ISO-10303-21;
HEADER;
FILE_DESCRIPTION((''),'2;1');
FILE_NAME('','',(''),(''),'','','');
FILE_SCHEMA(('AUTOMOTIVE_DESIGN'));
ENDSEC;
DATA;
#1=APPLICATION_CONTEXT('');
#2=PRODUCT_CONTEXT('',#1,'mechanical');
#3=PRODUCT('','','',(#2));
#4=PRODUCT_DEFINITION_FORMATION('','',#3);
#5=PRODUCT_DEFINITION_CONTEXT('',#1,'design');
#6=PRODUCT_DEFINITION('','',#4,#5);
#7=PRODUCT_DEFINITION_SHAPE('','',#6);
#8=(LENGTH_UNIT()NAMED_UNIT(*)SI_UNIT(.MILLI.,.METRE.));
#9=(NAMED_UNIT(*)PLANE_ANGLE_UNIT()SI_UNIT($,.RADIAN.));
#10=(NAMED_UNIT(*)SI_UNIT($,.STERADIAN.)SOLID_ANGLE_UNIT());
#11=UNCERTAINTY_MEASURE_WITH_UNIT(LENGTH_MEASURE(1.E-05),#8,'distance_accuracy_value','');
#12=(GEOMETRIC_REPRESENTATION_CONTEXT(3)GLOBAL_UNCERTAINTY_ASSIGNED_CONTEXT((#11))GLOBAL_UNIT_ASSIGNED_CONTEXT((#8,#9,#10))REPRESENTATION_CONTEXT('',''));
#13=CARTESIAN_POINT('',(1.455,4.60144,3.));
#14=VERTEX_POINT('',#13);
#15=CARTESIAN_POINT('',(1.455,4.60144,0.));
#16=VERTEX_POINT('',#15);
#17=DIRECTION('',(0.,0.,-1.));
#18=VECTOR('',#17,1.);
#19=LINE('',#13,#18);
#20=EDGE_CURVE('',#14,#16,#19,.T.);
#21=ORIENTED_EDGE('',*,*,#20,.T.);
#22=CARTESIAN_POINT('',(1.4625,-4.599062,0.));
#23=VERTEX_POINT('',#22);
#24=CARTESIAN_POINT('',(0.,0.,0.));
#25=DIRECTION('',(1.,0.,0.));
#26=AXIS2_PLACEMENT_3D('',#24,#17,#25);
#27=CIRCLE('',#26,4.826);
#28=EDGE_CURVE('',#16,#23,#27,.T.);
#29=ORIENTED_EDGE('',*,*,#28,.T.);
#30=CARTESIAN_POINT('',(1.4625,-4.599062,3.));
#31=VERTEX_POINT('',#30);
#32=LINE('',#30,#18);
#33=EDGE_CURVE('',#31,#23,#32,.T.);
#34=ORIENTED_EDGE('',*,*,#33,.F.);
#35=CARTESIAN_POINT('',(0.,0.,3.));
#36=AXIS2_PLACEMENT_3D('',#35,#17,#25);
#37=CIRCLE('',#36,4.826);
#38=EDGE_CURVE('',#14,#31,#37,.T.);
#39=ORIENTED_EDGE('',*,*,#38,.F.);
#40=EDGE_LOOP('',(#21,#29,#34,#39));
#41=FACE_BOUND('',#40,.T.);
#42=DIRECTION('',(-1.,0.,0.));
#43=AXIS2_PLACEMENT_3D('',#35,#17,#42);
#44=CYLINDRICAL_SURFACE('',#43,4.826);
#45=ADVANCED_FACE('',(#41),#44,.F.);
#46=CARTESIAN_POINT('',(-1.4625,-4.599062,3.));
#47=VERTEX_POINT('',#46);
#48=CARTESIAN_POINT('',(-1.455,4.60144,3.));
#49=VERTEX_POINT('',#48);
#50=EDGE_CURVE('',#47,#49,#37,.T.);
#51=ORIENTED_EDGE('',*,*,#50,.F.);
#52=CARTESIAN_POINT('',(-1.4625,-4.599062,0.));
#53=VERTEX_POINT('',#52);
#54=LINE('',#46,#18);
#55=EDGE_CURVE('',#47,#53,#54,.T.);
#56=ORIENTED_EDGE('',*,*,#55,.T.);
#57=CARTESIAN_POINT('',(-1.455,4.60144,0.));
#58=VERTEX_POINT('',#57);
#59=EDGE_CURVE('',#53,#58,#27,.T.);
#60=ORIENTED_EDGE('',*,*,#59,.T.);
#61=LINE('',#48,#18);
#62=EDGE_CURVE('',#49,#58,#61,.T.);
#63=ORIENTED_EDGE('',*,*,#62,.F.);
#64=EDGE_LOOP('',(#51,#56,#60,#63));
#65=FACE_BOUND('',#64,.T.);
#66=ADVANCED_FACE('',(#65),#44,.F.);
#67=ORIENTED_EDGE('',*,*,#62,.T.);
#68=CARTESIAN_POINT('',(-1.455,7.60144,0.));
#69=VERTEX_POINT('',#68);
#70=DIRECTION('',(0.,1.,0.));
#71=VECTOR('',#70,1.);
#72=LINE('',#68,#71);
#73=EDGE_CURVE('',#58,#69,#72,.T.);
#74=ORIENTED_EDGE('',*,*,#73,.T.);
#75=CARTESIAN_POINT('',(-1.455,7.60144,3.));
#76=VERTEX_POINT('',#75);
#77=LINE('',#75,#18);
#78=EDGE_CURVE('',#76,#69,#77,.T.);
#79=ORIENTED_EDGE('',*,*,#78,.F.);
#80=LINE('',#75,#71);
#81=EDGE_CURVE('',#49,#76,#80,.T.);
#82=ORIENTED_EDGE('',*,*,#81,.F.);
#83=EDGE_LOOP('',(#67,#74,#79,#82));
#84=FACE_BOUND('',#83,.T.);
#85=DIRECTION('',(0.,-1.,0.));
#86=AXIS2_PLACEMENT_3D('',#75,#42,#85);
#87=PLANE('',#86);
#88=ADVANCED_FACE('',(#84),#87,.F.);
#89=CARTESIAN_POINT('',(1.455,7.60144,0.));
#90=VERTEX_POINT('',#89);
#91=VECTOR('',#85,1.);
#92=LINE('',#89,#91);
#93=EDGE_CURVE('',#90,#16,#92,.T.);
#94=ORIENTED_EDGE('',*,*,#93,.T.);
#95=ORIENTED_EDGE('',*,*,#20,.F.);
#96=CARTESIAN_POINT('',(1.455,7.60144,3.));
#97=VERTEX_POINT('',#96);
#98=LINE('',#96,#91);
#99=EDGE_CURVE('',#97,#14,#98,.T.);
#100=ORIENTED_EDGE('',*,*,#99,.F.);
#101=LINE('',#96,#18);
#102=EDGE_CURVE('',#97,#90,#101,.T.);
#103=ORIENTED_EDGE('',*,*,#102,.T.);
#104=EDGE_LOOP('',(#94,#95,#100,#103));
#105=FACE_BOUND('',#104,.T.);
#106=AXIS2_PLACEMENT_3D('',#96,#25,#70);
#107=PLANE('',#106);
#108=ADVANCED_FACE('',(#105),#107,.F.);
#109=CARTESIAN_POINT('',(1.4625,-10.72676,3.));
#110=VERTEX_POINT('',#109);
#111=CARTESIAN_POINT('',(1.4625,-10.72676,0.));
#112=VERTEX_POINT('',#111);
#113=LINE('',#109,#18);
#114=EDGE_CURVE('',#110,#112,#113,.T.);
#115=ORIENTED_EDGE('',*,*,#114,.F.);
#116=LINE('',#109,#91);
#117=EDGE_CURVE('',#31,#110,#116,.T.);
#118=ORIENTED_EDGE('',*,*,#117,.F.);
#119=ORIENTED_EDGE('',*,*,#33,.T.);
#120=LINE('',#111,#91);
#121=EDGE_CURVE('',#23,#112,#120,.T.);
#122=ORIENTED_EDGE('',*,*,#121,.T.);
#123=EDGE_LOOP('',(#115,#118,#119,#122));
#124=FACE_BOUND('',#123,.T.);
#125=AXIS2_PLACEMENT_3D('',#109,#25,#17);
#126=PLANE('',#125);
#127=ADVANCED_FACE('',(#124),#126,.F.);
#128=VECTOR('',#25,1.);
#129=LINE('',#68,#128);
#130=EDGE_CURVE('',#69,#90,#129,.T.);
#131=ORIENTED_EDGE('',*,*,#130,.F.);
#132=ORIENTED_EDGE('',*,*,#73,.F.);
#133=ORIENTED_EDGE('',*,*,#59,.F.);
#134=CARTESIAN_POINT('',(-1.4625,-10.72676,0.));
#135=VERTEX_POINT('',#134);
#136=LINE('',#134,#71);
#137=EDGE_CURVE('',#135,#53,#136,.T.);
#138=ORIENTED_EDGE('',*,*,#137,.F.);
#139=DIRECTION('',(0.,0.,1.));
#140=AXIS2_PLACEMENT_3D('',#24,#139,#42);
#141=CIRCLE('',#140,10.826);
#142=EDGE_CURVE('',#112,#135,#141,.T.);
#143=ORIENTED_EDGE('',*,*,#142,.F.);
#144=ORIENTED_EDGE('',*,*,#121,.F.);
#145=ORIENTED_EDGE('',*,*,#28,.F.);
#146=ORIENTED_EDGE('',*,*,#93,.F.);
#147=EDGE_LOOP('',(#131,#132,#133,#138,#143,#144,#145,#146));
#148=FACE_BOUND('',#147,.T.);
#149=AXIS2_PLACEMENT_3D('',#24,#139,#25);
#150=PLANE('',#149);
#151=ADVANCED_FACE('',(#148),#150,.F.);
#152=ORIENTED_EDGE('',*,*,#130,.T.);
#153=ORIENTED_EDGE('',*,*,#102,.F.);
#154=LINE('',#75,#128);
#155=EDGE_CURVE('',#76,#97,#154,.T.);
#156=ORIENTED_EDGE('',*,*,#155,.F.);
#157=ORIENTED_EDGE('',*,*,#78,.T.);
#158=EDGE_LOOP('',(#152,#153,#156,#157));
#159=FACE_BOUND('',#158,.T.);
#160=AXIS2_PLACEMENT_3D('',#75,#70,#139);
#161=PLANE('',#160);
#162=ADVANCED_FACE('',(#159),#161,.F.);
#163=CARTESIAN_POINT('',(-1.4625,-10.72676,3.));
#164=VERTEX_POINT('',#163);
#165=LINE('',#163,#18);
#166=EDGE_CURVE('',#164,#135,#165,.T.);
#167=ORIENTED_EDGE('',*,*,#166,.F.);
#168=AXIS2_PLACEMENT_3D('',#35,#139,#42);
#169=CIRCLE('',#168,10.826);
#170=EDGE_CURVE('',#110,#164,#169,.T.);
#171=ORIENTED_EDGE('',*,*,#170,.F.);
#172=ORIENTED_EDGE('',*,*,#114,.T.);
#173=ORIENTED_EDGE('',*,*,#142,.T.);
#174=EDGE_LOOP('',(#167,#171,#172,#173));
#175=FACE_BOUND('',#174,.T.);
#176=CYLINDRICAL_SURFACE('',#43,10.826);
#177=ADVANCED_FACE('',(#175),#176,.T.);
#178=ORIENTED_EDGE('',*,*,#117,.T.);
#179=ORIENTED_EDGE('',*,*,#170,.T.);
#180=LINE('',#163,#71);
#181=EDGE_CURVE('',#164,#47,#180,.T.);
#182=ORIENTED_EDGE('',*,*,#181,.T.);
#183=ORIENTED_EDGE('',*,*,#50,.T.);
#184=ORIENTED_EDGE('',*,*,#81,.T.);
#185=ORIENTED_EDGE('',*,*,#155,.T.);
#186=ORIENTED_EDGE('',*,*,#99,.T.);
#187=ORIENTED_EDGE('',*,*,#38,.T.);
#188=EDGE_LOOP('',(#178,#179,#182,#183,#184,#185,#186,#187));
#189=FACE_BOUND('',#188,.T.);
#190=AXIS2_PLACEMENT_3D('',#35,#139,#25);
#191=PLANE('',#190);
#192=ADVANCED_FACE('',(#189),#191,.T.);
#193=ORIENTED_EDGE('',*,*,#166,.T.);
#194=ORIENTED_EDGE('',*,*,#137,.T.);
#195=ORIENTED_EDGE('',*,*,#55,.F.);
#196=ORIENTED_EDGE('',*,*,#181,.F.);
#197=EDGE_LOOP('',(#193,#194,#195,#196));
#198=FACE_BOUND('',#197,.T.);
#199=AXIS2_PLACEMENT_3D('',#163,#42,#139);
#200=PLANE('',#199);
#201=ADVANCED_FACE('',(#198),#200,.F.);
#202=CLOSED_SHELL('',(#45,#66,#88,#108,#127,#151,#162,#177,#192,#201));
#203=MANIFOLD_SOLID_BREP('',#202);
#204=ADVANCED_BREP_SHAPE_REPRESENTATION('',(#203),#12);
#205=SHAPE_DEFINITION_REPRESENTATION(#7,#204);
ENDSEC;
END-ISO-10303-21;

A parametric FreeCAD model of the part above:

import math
import FreeCAD as App
import Part
import Sketcher
from FreeCAD import Vector

doc = App.newDocument("Part")
body = doc.addObject("PartDesign::Body", "Body")

sketch1 = doc.addObject("Sketcher::SketchObject", "Sketch")
body.addObject(sketch1)
sketch1.AttachmentSupport = (doc.XY_Plane, [""])
sketch1.MapMode = "FlatFace"
sketch1.addGeometry([
    Part.LineSegment(Vector(-1.5, 7.6, 0), Vector(1.5, 7.6, 0)),
    Part.LineSegment(Vector(1.5, 7.6, 0), Vector(1.5, 4.6, 0)),
    Part.ArcOfCircle(Part.Circle(Vector(0, 0, 0), Vector(0, 0, 1), 4.8), math.radians(-72), math.radians(72)),
    Part.LineSegment(Vector(1.5, -4.6, 0), Vector(1.5, -10.7, 0)),
    Part.ArcOfCircle(Part.Circle(Vector(0, 0, 0), Vector(0, 0, 1), 10.8), math.radians(-82), math.radians(262)),
    Part.LineSegment(Vector(-1.5, -10.7, 0), Vector(-1.5, -4.6, 0)),
    Part.ArcOfCircle(Part.Circle(Vector(0, 0, 0), Vector(0, 0, 1), 4.8), math.radians(108), math.radians(252)),
    Part.LineSegment(Vector(-1.5, 4.6, 0), Vector(-1.5, 7.6, 0)),
], False)
sketch1.addConstraint([
    Sketcher.Constraint("Coincident", 0, 2, 1, 1),
    Sketcher.Constraint("Coincident", 1, 2, 2, 2),
    Sketcher.Constraint("Coincident", 2, 1, 3, 1),
    Sketcher.Constraint("Coincident", 3, 2, 4, 1),
    Sketcher.Constraint("Coincident", 4, 2, 5, 1),
    Sketcher.Constraint("Coincident", 5, 2, 6, 2),
    Sketcher.Constraint("Coincident", 6, 1, 7, 1),
    Sketcher.Constraint("Coincident", 7, 2, 0, 1),
    Sketcher.Constraint("Horizontal", 0),
    Sketcher.Constraint("Vertical", 1),
    Sketcher.Constraint("Vertical", 3),
    Sketcher.Constraint("Vertical", 5),
    Sketcher.Constraint("Vertical", 7),
    Sketcher.Constraint("Coincident", 2, 3, -1, 1),
    Sketcher.Constraint("Coincident", 4, 3, -1, 1),
    Sketcher.Constraint("Coincident", 6, 3, -1, 1),
    Sketcher.Constraint("Equal", 2, 6),
    Sketcher.Constraint("Horizontal", 3, 2, 4, 2),
    Sketcher.Constraint("Horizontal", 1, 2, 6, 1),
    Sketcher.Constraint("DistanceY", 1, 2, 1, 1, 3.0),
    Sketcher.Constraint("Radius", 2, 4.826),
    Sketcher.Constraint("Radius", 4, 10.826),
    Sketcher.Constraint("DistanceX", 0, 1, 0, 2, 2.91),
    Sketcher.Constraint("DistanceX", 4, 2, 3, 2, 2.925),
])
pad1 = doc.addObject("PartDesign::Pad", "Pad")
body.addObject(pad1)
pad1.Profile = sketch1
pad1.Length = 3

doc.recompute()
